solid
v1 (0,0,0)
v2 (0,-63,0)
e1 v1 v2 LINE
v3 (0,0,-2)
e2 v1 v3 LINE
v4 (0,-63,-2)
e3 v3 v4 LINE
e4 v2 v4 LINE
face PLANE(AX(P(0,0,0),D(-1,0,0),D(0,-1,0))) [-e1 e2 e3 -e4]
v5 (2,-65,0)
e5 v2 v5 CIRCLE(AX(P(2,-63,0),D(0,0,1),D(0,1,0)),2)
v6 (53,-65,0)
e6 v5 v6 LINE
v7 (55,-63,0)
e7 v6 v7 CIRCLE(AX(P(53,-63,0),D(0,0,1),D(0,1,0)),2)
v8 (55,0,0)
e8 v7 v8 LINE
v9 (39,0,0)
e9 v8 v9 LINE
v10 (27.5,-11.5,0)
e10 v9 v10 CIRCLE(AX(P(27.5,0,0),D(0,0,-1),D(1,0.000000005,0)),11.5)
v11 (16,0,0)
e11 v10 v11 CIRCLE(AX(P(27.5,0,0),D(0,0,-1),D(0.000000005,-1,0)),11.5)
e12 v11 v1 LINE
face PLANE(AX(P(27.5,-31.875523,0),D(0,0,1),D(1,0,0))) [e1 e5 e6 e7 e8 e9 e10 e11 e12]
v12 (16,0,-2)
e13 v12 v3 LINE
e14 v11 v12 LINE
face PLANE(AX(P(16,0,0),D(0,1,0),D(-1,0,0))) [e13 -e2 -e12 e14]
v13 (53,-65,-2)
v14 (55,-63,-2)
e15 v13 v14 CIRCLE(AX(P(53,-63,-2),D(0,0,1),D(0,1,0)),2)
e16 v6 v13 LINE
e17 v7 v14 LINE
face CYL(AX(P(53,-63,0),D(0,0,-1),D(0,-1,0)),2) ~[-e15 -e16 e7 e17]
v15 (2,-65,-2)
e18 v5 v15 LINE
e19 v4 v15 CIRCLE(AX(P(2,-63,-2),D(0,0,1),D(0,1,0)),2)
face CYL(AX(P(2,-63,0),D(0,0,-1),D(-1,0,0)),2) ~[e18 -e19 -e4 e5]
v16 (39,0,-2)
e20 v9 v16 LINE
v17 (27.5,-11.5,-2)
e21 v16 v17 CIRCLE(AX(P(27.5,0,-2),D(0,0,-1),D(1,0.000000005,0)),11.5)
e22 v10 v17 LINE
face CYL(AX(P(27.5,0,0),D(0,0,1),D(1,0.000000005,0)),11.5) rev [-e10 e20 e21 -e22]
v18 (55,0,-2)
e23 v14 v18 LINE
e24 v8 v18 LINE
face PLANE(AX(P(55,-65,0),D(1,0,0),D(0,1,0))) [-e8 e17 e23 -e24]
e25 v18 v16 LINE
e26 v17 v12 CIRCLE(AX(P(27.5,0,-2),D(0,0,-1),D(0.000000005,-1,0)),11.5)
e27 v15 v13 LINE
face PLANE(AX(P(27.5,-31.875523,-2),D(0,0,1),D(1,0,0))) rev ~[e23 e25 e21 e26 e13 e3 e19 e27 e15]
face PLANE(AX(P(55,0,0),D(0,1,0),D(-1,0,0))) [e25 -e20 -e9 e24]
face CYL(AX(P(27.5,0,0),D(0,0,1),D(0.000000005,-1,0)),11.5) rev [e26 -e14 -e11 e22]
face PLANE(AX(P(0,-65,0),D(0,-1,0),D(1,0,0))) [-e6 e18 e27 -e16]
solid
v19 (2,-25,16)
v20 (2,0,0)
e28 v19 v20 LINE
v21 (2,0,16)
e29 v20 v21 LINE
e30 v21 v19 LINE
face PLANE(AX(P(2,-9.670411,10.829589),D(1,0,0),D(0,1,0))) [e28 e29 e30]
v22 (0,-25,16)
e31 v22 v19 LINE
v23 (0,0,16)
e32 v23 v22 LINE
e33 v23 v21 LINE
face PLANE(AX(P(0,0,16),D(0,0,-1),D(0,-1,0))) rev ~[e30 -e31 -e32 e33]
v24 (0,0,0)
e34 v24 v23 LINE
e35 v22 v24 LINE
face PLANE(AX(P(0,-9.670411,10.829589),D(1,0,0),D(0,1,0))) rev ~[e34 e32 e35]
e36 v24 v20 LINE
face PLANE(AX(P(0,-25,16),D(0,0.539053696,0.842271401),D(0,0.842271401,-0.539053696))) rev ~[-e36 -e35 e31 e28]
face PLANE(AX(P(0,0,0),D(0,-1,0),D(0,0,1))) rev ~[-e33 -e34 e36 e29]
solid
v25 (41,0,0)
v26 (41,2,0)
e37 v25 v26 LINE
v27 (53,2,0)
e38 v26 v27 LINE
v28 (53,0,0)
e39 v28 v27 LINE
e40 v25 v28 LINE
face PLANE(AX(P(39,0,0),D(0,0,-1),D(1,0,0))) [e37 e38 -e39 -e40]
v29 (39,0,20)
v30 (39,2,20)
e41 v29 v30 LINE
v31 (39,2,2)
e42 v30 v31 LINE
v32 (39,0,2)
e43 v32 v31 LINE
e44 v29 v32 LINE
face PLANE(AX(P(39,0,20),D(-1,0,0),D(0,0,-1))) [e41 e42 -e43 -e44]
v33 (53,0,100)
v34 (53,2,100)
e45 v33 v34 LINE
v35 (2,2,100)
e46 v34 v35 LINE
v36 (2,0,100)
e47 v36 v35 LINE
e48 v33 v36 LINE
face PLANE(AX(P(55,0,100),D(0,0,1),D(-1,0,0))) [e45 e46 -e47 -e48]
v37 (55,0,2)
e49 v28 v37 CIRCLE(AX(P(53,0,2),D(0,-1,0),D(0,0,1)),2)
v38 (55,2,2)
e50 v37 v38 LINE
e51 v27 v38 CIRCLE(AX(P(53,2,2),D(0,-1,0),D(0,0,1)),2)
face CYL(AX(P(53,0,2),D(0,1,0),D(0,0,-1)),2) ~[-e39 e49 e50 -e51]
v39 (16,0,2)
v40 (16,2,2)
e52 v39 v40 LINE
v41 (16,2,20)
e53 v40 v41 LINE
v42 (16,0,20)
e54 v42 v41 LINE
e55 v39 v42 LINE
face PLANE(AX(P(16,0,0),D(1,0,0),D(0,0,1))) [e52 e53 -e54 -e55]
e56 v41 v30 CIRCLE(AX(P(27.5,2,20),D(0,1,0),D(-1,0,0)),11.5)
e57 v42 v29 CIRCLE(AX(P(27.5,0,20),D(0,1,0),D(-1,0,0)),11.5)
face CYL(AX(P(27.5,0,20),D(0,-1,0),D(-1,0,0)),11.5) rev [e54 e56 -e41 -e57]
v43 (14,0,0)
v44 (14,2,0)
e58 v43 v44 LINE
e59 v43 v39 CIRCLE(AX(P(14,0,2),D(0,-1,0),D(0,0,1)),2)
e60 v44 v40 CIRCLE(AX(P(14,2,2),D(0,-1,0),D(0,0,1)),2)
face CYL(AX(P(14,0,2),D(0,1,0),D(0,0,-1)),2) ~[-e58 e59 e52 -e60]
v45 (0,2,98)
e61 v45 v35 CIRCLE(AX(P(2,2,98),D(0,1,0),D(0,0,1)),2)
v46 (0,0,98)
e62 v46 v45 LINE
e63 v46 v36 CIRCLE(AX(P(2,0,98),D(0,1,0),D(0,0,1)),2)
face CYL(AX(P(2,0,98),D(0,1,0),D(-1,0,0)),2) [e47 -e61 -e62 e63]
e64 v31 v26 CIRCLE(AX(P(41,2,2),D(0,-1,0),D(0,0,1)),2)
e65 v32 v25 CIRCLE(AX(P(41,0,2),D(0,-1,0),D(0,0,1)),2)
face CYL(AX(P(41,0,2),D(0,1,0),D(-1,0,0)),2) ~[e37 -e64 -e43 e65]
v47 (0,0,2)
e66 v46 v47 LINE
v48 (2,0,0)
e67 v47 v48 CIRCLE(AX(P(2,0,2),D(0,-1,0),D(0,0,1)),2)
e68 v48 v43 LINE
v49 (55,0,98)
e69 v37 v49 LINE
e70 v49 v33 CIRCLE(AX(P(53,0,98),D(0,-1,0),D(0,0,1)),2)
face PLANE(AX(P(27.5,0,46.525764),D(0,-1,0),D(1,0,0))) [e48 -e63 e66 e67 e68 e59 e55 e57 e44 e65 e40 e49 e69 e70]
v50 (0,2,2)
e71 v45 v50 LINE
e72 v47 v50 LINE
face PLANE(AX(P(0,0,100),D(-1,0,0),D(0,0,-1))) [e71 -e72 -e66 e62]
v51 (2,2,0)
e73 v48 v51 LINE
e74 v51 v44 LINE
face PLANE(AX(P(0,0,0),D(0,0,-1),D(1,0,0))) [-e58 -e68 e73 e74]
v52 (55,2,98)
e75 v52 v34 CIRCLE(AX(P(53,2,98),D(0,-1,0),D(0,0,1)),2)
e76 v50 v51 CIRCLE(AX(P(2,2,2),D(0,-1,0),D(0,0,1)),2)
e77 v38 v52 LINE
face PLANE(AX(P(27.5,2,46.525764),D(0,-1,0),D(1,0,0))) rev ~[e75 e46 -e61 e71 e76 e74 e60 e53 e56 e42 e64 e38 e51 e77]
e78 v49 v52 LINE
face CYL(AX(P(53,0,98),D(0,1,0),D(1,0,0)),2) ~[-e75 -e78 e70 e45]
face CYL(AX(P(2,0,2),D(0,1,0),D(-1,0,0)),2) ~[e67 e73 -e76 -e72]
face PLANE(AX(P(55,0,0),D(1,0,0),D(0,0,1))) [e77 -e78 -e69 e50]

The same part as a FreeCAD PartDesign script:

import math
import FreeCAD as App
import Part
import Sketcher

V = App.Vector


def edges_at(feature, points):
    """Names of the edges that pass closest to the given points."""
    edges = feature.Shape.Edges
    near = lambda p: min(range(len(edges)), key=lambda i: edges[i].distToShape(Part.Vertex(*p))[0])
    return sorted({f"Edge{near(p) + 1}" for p in points})

doc = App.newDocument("Part")
body = doc.addObject("PartDesign::Body", "Body")

sketch1 = body.newObject("Sketcher::SketchObject", "Sketch")
sketch1.AttachmentSupport = (doc.getObject("XZ_Plane"), [""])
sketch1.MapMode = "FlatFace"
sketch1.addGeometry([
    Part.LineSegment(V(0, 100, 0), V(0, 0, 0)),
    Part.LineSegment(V(0, 0, 0), V(16, 0, 0)),
    Part.LineSegment(V(16, 0, 0), V(16, 20, 0)),
    Part.ArcOfCircle(Part.Circle(V(28, 20, 0), V(0, 0, 1), 12), math.radians(0), math.radians(180)),
    Part.LineSegment(V(39, 20, 0), V(39, 0, 0)),
    Part.LineSegment(V(39, 0, 0), V(55, 0, 0)),
    Part.LineSegment(V(55, 0, 0), V(55, 100, 0)),
    Part.LineSegment(V(55, 100, 0), V(0, 100, 0)),
], False)
sketch1.addConstraint([
    Sketcher.Constraint("Coincident", 0, 2, 1, 1),
    Sketcher.Constraint("Coincident", 1, 2, 2, 1),
    Sketcher.Constraint("Tangent", 2, 2, 3, 2),
    Sketcher.Constraint("Tangent", 3, 1, 4, 1),
    Sketcher.Constraint("Coincident", 4, 2, 5, 1),
    Sketcher.Constraint("Coincident", 5, 2, 6, 1),
    Sketcher.Constraint("Coincident", 6, 2, 7, 1),
    Sketcher.Constraint("Coincident", 7, 2, 0, 1),
    Sketcher.Constraint("Vertical", 0),
    Sketcher.Constraint("Horizontal", 1),
    Sketcher.Constraint("Vertical", 2),
    Sketcher.Constraint("Vertical", 4),
    Sketcher.Constraint("Horizontal", 5),
    Sketcher.Constraint("Vertical", 6),
    Sketcher.Constraint("Horizontal", 7),
    Sketcher.Constraint("Coincident", 0, 2, -1, 1),
    Sketcher.Constraint("PointOnObject", 4, 2, -1),
    Sketcher.Constraint("Equal", 1, 5),
    Sketcher.Constraint("Radius", 3, 11.5),
    Sketcher.Constraint("DistanceX", 1, 1, 1, 2, 16.0),
    Sketcher.Constraint("DistanceY", 0, 2, 0, 1, 100.0),
    Sketcher.Constraint("DistanceY", 2, 1, 2, 2, 20.0),
])
pad1 = body.newObject("PartDesign::Pad", "Pad")
pad1.Profile = sketch1
pad1.Length = 2
pad1.Reversed = True
doc.recompute()

fillet = body.newObject("PartDesign::Fillet", "Fillet")
fillet.Base = (pad1, edges_at(pad1, [
    (0, 1, 100),
    (55, 1, 100),
    (55, 1, 0),
    (39, 1, 0),
    (16, 1, 0),
    (0, 1, 0),
]))
fillet.Radius = 2
body2 = doc.addObject("PartDesign::Body", "Body001")

sketch2 = body2.newObject("Sketcher::SketchObject", "Sketch001")
sketch2.AttachmentSupport = (doc.getObject("XY_Plane001"), [""])
sketch2.MapMode = "FlatFace"
sketch2.addGeometry([
    Part.LineSegment(V(16, 0, 0), V(0, 0, 0)),
    Part.LineSegment(V(0, 0, 0), V(0, -65, 0)),
    Part.LineSegment(V(0, -65, 0), V(55, -65, 0)),
    Part.LineSegment(V(55, -65, 0), V(55, 0, 0)),
    Part.LineSegment(V(55, 0, 0), V(39, 0, 0)),
    Part.ArcOfCircle(Part.Circle(V(28, 0, 0), V(0, 0, 1), 11), math.radians(-90), math.radians(0)),
    Part.ArcOfCircle(Part.Circle(V(27, 0, 0), V(0, 0, 1), 11), math.radians(180), math.radians(270)),
], False)
sketch2.addConstraint([
    Sketcher.Constraint("Coincident", 0, 2, 1, 1),
    Sketcher.Constraint("Coincident", 1, 2, 2, 1),
    Sketcher.Constraint("Coincident", 2, 2, 3, 1),
    Sketcher.Constraint("Coincident", 3, 2, 4, 1),
    Sketcher.Constraint("Coincident", 4, 2, 5, 2),
    Sketcher.Constraint("Tangent", 5, 1, 6, 2),
    Sketcher.Constraint("Coincident", 6, 1, 0, 1),
    Sketcher.Constraint("Horizontal", 0),
    Sketcher.Constraint("Vertical", 1),
    Sketcher.Constraint("Horizontal", 2),
    Sketcher.Constraint("Vertical", 3),
    Sketcher.Constraint("Horizontal", 4),
    Sketcher.Constraint("Coincident", 0, 2, -1, 1),
    Sketcher.Constraint("Equal", 5, 6),
    Sketcher.Constraint("PointOnObject", 5, 3, -1),
    Sketcher.Constraint("PointOnObject", 3, 2, -1),
    Sketcher.Constraint("Vertical", 6, 3, 5, 1),
    Sketcher.Constraint("Equal", 0, 4),
    Sketcher.Constraint("Radius", 5, 11.5),
    Sketcher.Constraint("DistanceX", 0, 2, 0, 1, 16.0),
    Sketcher.Constraint("DistanceY", 1, 2, 1, 1, 65.0),
])
pad2 = body2.newObject("PartDesign::Pad", "Pad001")
pad2.Profile = sketch2
pad2.Length = 2
pad2.Reversed = True
doc.recompute()

fillet2 = body2.newObject("PartDesign::Fillet", "Fillet001")
fillet2.Base = (pad2, edges_at(pad2, [(0, -65, -1), (55, -65, -1)]))
fillet2.Radius = 2
body3 = doc.addObject("PartDesign::Body", "Body002")

sketch3 = body3.newObject("Sketcher::SketchObject", "Sketch002")
sketch3.AttachmentSupport = (doc.getObject("YZ_Plane002"), [""])
sketch3.MapMode = "FlatFace"
sketch3.addGeometry([
    Part.LineSegment(V(-25, 16, 0), V(0, 0, 0)),
    Part.LineSegment(V(0, 0, 0), V(0, 16, 0)),
    Part.LineSegment(V(0, 16, 0), V(-25, 16, 0)),
], False)
sketch3.addConstraint([
    Sketcher.Constraint("Coincident", 0, 2, 1, 1),
    Sketcher.Constraint("Coincident", 1, 2, 2, 1),
    Sketcher.Constraint("Coincident", 2, 2, 0, 1),
    Sketcher.Constraint("Vertical", 1),
    Sketcher.Constraint("Horizontal", 2),
    Sketcher.Constraint("Coincident", 0, 2, -1, 1),
    Sketcher.Constraint("DistanceX", 2, 2, 2, 1, 25.0),
    Sketcher.Constraint("DistanceY", 1, 1, 1, 2, 16.0),
])
pad3 = body3.newObject("PartDesign::Pad", "Pad002")
pad3.Profile = sketch3
pad3.Length = 2

doc.recompute()
